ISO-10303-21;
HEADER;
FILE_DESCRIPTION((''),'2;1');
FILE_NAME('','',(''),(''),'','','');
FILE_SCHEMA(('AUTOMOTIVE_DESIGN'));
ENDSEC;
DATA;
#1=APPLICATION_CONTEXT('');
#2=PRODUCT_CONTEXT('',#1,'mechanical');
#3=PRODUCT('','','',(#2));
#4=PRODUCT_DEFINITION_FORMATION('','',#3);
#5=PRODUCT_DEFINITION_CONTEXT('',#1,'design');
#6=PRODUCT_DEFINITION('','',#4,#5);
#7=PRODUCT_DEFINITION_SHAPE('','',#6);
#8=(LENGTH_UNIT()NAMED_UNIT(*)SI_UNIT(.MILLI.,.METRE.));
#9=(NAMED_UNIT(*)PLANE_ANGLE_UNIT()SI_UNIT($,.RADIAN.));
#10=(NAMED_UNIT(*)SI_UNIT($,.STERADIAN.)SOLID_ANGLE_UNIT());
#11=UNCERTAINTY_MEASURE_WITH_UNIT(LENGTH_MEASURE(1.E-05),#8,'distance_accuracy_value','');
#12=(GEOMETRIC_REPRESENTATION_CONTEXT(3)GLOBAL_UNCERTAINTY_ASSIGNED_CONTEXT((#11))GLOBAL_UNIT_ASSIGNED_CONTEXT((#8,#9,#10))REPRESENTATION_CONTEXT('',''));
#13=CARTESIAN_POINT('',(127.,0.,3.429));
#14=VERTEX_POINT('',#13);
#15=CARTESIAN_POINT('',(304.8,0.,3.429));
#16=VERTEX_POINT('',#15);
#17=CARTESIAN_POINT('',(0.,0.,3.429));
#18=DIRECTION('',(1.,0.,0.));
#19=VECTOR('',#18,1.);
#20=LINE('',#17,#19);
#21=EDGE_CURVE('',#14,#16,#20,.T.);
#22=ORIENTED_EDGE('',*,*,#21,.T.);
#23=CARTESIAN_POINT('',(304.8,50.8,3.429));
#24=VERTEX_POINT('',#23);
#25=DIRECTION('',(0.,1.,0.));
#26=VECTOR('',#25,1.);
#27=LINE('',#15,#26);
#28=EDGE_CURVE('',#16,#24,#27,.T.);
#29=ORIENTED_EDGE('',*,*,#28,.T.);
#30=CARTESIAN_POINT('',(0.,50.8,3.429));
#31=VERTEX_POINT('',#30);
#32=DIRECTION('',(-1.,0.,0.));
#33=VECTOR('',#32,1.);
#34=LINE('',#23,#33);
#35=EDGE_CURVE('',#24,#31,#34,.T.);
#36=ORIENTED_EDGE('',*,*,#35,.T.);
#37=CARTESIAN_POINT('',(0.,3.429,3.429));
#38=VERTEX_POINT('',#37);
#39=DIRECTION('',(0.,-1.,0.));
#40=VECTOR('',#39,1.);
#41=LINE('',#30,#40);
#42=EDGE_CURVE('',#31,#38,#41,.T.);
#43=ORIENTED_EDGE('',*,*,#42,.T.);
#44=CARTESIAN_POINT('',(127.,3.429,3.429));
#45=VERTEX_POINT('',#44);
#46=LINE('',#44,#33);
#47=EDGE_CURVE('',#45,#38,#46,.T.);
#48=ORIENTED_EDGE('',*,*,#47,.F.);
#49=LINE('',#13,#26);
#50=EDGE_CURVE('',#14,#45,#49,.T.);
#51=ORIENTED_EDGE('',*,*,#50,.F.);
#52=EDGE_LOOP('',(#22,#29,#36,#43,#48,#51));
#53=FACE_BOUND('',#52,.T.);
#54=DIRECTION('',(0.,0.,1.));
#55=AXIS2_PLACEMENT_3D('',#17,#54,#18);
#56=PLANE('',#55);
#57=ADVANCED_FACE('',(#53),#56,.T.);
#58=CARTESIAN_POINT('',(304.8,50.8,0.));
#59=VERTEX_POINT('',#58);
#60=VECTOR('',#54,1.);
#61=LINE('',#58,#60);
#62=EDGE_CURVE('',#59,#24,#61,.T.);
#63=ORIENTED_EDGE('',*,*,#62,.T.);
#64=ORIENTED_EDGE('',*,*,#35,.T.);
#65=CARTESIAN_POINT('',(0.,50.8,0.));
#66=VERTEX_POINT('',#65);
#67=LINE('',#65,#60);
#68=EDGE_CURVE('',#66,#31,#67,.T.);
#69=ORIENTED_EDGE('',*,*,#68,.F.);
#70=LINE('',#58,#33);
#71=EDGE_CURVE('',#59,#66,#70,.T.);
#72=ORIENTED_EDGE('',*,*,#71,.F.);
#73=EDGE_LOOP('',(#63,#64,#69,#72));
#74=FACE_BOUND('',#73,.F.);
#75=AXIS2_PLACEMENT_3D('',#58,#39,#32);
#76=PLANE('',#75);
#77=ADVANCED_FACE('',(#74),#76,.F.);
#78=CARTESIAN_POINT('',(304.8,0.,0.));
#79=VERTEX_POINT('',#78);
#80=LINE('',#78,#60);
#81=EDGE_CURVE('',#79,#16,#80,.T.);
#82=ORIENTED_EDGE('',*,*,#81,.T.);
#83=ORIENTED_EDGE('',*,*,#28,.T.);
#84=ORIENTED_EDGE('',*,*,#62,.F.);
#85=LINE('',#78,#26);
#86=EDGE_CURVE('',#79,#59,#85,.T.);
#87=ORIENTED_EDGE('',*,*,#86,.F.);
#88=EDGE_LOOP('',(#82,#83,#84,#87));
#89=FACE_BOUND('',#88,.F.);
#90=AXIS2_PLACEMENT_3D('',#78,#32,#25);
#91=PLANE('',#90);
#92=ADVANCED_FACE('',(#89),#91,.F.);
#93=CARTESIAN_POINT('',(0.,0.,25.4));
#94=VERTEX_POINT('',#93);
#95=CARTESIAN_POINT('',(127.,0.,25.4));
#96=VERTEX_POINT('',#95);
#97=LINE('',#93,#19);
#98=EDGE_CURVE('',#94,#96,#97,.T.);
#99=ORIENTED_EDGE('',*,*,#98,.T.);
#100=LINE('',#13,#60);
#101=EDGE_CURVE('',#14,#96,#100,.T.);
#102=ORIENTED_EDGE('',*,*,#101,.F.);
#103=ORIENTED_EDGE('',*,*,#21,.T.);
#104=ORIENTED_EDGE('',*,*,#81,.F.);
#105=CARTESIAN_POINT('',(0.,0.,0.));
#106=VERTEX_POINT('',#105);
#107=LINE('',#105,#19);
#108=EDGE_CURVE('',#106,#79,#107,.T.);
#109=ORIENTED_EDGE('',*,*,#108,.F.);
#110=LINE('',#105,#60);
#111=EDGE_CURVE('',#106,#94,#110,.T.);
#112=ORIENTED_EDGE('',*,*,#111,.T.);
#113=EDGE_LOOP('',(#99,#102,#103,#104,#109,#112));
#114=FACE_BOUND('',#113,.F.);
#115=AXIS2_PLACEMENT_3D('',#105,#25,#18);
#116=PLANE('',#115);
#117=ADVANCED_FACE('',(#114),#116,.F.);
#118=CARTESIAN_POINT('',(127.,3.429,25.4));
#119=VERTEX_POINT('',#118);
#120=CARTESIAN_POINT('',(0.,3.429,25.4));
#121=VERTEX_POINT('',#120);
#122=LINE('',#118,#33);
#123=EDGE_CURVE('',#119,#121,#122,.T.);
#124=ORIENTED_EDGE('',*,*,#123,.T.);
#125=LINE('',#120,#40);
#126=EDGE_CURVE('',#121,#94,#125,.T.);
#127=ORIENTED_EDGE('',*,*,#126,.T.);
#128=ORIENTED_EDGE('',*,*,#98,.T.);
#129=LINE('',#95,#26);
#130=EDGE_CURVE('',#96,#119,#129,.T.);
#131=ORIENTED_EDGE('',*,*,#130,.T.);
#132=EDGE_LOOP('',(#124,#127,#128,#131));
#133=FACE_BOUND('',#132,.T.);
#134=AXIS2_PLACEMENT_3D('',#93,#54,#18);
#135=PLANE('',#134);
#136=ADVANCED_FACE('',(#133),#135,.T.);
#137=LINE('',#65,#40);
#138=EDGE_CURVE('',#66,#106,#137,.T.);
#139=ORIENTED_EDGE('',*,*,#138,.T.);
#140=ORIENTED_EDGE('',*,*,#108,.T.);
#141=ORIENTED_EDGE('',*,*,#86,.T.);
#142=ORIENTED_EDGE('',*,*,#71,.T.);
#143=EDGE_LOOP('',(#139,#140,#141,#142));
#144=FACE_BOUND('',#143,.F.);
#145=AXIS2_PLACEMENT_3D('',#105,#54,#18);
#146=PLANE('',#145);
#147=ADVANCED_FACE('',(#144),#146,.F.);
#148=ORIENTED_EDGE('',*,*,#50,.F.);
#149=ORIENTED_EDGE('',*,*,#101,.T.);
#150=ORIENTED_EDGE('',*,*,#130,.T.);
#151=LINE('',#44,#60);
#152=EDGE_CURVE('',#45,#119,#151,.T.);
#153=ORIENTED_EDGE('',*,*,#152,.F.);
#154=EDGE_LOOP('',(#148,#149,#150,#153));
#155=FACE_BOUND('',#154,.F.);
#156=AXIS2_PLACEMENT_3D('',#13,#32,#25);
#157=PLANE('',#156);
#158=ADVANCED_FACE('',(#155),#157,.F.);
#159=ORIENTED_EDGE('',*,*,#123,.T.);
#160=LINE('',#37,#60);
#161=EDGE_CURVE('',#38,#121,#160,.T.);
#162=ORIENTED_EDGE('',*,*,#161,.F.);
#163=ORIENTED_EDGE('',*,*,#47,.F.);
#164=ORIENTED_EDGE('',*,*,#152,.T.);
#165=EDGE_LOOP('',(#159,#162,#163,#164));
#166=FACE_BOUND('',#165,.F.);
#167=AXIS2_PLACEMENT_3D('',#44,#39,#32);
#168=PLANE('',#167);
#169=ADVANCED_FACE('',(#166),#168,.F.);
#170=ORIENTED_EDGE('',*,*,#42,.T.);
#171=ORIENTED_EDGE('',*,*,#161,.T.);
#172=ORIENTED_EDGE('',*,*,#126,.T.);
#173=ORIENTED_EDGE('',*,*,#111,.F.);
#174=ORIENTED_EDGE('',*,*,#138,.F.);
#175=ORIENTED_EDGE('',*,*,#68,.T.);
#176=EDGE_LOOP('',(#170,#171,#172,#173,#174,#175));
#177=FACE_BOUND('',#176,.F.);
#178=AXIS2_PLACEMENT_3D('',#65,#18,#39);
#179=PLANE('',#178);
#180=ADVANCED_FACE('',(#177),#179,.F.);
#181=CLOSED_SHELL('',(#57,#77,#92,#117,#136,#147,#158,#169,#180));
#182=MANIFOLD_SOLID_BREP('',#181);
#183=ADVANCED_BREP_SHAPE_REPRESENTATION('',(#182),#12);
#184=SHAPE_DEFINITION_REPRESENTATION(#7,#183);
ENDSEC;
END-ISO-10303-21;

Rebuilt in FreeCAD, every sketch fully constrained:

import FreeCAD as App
import Part
import Sketcher

V = App.Vector
Q = App.Units.Quantity


def add_polygon(sketch, points):
    """Adds a closed chain of lines whose ends are joined by coincident constraints."""
    first, n = sketch.GeometryCount, len(points)
    for a, b in zip(points, points[1:] + points[:1]):
        sketch.addGeometry(Part.LineSegment(App.Vector(*a, 0), App.Vector(*b, 0)), False)
    for i in range(n):
        sketch.addConstraint(Sketcher.Constraint("Coincident", first + i, 2, first + (i + 1) % n, 1))

doc = App.newDocument("Part")
body = doc.addObject("PartDesign::Body", "Body")

sketch1 = body.newObject("Sketcher::SketchObject", "Sketch")
sketch1.AttachmentSupport = (doc.getObject("XY_Plane"), [""])
sketch1.MapMode = "FlatFace"
add_polygon(sketch1, [(0, 50.8), (0, 0), (304.8, 0), (304.8, 50.8)])
sketch1.addConstraint([
    Sketcher.Constraint("Vertical", 0),
    Sketcher.Constraint("Horizontal", 1),
    Sketcher.Constraint("Vertical", 2),
    Sketcher.Constraint("Horizontal", 3),
    Sketcher.Constraint("Coincident", 0, 2, -1, 1),
    Sketcher.Constraint("DistanceX", 1, 1, 1, 2, Q("12 in")),
    Sketcher.Constraint("DistanceY", 0, 2, 0, 1, Q("2 in")),
])
pad1 = body.newObject("PartDesign::Pad", "Pad")
pad1.Profile = sketch1
pad1.Length = Q("0.135 in")

sketch2 = body.newObject("Sketcher::SketchObject", "Sketch001")
sketch2.AttachmentSupport = (doc.getObject("XY_Plane"), [""])
sketch2.MapMode = "FlatFace"
sketch2.AttachmentOffset = App.Placement(V(0, 0, 0.135 * 25.4), App.Rotation())
add_polygon(sketch2, [(0, 3.429), (0, 0), (127, 0), (127, 3.429)])
sketch2.addConstraint([
    Sketcher.Constraint("Vertical", 0),
    Sketcher.Constraint("Horizontal", 1),
    Sketcher.Constraint("Vertical", 2),
    Sketcher.Constraint("Horizontal", 3),
    Sketcher.Constraint("Coincident", 0, 2, -1, 1),
    Sketcher.Constraint("DistanceX", 1, 1, 1, 2, Q("5 in")),
    Sketcher.Constraint("DistanceY", 0, 2, 0, 1, Q("0.135 in")),
])
pad2 = body.newObject("PartDesign::Pad", "Pad001")
pad2.Profile = sketch2
pad2.Length = Q("0.865 in")

doc.recompute()
